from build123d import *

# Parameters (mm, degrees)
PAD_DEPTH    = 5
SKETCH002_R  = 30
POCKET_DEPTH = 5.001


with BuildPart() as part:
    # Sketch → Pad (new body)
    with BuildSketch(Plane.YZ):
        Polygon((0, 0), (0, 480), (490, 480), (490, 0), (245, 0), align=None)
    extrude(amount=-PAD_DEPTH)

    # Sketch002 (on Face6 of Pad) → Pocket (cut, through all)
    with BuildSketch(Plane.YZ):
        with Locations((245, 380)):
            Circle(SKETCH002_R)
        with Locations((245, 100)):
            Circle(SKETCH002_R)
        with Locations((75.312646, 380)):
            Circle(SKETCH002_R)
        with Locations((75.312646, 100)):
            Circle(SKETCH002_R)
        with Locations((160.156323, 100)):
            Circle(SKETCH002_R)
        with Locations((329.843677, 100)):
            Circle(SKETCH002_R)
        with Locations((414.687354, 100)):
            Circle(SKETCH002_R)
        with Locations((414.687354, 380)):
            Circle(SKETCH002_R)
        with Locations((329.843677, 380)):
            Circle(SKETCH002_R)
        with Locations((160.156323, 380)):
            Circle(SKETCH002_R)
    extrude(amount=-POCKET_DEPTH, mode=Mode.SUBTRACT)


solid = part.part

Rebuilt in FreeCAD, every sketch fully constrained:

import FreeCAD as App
import Part
import Sketcher
from FreeCAD import Vector
Q = App.Units.Quantity


def add_polygon(sketch, points):
    """Adds a closed chain of lines whose ends are joined by coincident constraints."""
    first, n = sketch.GeometryCount, len(points)
    for a, b in zip(points, points[1:] + points[:1]):
        sketch.addGeometry(Part.LineSegment(App.Vector(*a, 0), App.Vector(*b, 0)), False)
    for i in range(n):
        sketch.addConstraint(Sketcher.Constraint("Coincident", first + i, 2, first + (i + 1) % n, 1))

doc = App.newDocument("Part")
body = doc.addObject("PartDesign::Body", "Body")

# Sketch on YZ plane
sketch1 = body.newObject("Sketcher::SketchObject", "Sketch")
sketch1.AttachmentSupport = (doc.getObject("YZ_Plane"), [""])
sketch1.MapMode = "FlatFace"
add_polygon(sketch1, [(0, 480), (0, 0), (490, 0), (490, 480)])  # lines 0-3
sketch1.addConstraint(Sketcher.Constraint("Vertical", 0))
sketch1.addConstraint(Sketcher.Constraint("Horizontal", 1))
sketch1.addConstraint(Sketcher.Constraint("Vertical", 2))
sketch1.addConstraint(Sketcher.Constraint("Horizontal", 3))
sketch1.addConstraint(Sketcher.Constraint("Coincident", 0, 2, -1, 1))
sketch1.addConstraint(Sketcher.Constraint("DistanceX", 1, 1, 1, 2, Q("490 mm")))
sketch1.addConstraint(Sketcher.Constraint("DistanceY", 0, 2, 0, 1, Q("480 mm")))
pad1 = body.newObject("PartDesign::Pad", "Pad")
pad1.Profile = sketch1
pad1.Length = 5
pad1.Reversed = True

# Sketch on YZ plane
sketch2 = body.newObject("Sketcher::SketchObject", "Sketch001")
sketch2.AttachmentSupport = (doc.getObject("YZ_Plane"), [""])
sketch2.MapMode = "FlatFace"
sketch2.addGeometry(Part.Circle(Vector(245, 380, 0), Vector(0, 0, 1), 30), False)
sketch2.addGeometry(Part.Circle(Vector(245, 100, 0), Vector(0, 0, 1), 30), False)
sketch2.addGeometry(Part.Circle(Vector(75.312646, 380, 0), Vector(0, 0, 1), 30), False)
sketch2.addGeometry(Part.Circle(Vector(75.312646, 100, 0), Vector(0, 0, 1), 30), False)
sketch2.addGeometry(Part.Circle(Vector(160.156323, 100, 0), Vector(0, 0, 1), 30), False)
sketch2.addGeometry(Part.Circle(Vector(329.843677, 100, 0), Vector(0, 0, 1), 30), False)
sketch2.addGeometry(Part.Circle(Vector(414.687354, 100, 0), Vector(0, 0, 1), 30), False)
sketch2.addGeometry(Part.Circle(Vector(414.687354, 380, 0), Vector(0, 0, 1), 30), False)
sketch2.addGeometry(Part.Circle(Vector(329.843677, 380, 0), Vector(0, 0, 1), 30), False)
sketch2.addGeometry(Part.Circle(Vector(160.156323, 380, 0), Vector(0, 0, 1), 30), False)
sketch2.addConstraint(Sketcher.Constraint("Equal", 0, 1))
sketch2.addConstraint(Sketcher.Constraint("Equal", 1, 2))
sketch2.addConstraint(Sketcher.Constraint("Equal", 2, 3))
sketch2.addConstraint(Sketcher.Constraint("Equal", 3, 4))
sketch2.addConstraint(Sketcher.Constraint("Equal", 4, 5))
sketch2.addConstraint(Sketcher.Constraint("Equal", 5, 6))
sketch2.addConstraint(Sketcher.Constraint("Equal", 6, 7))
sketch2.addConstraint(Sketcher.Constraint("Equal", 7, 8))
sketch2.addConstraint(Sketcher.Constraint("Equal", 8, 9))
sketch2.addConstraint(Sketcher.Constraint("Horizontal", 0, 3, 2, 3))
sketch2.addConstraint(Sketcher.Constraint("Horizontal", 1, 3, 3, 3))
sketch2.addConstraint(Sketcher.Constraint("Horizontal", 3, 3, 4, 3))
sketch2.addConstraint(Sketcher.Constraint("Horizontal", 4, 3, 5, 3))
sketch2.addConstraint(Sketcher.Constraint("Horizontal", 5, 3, 6, 3))
sketch2.addConstraint(Sketcher.Constraint("Horizontal", 2, 3, 7, 3))
sketch2.addConstraint(Sketcher.Constraint("Horizontal", 7, 3, 8, 3))
sketch2.addConstraint(Sketcher.Constraint("Horizontal", 8, 3, 9, 3))
sketch2.addConstraint(Sketcher.Constraint("Vertical", 0, 3, 1, 3))
sketch2.addConstraint(Sketcher.Constraint("Vertical", 2, 3, 3, 3))
sketch2.addConstraint(Sketcher.Constraint("Vertical", 6, 3, 7, 3))
sketch2.addConstraint(Sketcher.Constraint("Vertical", 5, 3, 8, 3))
sketch2.addConstraint(Sketcher.Constraint("Vertical", 4, 3, 9, 3))
sketch2.addConstraint(Sketcher.Constraint("Diameter", 0, Q("60 mm")))
sketch2.addConstraint(Sketcher.Constraint("DistanceX", -1, 1, 0, 3, Q("245 mm")))
sketch2.addConstraint(Sketcher.Constraint("DistanceY", -1, 1, 0, 3, Q("380 mm")))
sketch2.addConstraint(Sketcher.Constraint("DistanceY", -1, 1, 1, 3, Q("100 mm")))
sketch2.addConstraint(Sketcher.Constraint("DistanceX", 3, 3, 5, 3, Q("254.531031 mm")))
sketch2.addConstraint(Sketcher.Constraint("DistanceX", 4, 3, 6, 3, Q("254.531031 mm")))
sketch2.addConstraint(Sketcher.Constraint("DistanceX", 3, 3, 6, 3, Q("339.374708 mm")))
sketch2.addConstraint(Sketcher.Constraint("DistanceX", -1, 1, 2, 3, Q("75.312646 mm")))
pocket1 = body.newObject("PartDesign::Pocket", "Pocket")
pocket1.Profile = sketch2
pocket1.Type = "ThroughAll"

doc.recompute()
